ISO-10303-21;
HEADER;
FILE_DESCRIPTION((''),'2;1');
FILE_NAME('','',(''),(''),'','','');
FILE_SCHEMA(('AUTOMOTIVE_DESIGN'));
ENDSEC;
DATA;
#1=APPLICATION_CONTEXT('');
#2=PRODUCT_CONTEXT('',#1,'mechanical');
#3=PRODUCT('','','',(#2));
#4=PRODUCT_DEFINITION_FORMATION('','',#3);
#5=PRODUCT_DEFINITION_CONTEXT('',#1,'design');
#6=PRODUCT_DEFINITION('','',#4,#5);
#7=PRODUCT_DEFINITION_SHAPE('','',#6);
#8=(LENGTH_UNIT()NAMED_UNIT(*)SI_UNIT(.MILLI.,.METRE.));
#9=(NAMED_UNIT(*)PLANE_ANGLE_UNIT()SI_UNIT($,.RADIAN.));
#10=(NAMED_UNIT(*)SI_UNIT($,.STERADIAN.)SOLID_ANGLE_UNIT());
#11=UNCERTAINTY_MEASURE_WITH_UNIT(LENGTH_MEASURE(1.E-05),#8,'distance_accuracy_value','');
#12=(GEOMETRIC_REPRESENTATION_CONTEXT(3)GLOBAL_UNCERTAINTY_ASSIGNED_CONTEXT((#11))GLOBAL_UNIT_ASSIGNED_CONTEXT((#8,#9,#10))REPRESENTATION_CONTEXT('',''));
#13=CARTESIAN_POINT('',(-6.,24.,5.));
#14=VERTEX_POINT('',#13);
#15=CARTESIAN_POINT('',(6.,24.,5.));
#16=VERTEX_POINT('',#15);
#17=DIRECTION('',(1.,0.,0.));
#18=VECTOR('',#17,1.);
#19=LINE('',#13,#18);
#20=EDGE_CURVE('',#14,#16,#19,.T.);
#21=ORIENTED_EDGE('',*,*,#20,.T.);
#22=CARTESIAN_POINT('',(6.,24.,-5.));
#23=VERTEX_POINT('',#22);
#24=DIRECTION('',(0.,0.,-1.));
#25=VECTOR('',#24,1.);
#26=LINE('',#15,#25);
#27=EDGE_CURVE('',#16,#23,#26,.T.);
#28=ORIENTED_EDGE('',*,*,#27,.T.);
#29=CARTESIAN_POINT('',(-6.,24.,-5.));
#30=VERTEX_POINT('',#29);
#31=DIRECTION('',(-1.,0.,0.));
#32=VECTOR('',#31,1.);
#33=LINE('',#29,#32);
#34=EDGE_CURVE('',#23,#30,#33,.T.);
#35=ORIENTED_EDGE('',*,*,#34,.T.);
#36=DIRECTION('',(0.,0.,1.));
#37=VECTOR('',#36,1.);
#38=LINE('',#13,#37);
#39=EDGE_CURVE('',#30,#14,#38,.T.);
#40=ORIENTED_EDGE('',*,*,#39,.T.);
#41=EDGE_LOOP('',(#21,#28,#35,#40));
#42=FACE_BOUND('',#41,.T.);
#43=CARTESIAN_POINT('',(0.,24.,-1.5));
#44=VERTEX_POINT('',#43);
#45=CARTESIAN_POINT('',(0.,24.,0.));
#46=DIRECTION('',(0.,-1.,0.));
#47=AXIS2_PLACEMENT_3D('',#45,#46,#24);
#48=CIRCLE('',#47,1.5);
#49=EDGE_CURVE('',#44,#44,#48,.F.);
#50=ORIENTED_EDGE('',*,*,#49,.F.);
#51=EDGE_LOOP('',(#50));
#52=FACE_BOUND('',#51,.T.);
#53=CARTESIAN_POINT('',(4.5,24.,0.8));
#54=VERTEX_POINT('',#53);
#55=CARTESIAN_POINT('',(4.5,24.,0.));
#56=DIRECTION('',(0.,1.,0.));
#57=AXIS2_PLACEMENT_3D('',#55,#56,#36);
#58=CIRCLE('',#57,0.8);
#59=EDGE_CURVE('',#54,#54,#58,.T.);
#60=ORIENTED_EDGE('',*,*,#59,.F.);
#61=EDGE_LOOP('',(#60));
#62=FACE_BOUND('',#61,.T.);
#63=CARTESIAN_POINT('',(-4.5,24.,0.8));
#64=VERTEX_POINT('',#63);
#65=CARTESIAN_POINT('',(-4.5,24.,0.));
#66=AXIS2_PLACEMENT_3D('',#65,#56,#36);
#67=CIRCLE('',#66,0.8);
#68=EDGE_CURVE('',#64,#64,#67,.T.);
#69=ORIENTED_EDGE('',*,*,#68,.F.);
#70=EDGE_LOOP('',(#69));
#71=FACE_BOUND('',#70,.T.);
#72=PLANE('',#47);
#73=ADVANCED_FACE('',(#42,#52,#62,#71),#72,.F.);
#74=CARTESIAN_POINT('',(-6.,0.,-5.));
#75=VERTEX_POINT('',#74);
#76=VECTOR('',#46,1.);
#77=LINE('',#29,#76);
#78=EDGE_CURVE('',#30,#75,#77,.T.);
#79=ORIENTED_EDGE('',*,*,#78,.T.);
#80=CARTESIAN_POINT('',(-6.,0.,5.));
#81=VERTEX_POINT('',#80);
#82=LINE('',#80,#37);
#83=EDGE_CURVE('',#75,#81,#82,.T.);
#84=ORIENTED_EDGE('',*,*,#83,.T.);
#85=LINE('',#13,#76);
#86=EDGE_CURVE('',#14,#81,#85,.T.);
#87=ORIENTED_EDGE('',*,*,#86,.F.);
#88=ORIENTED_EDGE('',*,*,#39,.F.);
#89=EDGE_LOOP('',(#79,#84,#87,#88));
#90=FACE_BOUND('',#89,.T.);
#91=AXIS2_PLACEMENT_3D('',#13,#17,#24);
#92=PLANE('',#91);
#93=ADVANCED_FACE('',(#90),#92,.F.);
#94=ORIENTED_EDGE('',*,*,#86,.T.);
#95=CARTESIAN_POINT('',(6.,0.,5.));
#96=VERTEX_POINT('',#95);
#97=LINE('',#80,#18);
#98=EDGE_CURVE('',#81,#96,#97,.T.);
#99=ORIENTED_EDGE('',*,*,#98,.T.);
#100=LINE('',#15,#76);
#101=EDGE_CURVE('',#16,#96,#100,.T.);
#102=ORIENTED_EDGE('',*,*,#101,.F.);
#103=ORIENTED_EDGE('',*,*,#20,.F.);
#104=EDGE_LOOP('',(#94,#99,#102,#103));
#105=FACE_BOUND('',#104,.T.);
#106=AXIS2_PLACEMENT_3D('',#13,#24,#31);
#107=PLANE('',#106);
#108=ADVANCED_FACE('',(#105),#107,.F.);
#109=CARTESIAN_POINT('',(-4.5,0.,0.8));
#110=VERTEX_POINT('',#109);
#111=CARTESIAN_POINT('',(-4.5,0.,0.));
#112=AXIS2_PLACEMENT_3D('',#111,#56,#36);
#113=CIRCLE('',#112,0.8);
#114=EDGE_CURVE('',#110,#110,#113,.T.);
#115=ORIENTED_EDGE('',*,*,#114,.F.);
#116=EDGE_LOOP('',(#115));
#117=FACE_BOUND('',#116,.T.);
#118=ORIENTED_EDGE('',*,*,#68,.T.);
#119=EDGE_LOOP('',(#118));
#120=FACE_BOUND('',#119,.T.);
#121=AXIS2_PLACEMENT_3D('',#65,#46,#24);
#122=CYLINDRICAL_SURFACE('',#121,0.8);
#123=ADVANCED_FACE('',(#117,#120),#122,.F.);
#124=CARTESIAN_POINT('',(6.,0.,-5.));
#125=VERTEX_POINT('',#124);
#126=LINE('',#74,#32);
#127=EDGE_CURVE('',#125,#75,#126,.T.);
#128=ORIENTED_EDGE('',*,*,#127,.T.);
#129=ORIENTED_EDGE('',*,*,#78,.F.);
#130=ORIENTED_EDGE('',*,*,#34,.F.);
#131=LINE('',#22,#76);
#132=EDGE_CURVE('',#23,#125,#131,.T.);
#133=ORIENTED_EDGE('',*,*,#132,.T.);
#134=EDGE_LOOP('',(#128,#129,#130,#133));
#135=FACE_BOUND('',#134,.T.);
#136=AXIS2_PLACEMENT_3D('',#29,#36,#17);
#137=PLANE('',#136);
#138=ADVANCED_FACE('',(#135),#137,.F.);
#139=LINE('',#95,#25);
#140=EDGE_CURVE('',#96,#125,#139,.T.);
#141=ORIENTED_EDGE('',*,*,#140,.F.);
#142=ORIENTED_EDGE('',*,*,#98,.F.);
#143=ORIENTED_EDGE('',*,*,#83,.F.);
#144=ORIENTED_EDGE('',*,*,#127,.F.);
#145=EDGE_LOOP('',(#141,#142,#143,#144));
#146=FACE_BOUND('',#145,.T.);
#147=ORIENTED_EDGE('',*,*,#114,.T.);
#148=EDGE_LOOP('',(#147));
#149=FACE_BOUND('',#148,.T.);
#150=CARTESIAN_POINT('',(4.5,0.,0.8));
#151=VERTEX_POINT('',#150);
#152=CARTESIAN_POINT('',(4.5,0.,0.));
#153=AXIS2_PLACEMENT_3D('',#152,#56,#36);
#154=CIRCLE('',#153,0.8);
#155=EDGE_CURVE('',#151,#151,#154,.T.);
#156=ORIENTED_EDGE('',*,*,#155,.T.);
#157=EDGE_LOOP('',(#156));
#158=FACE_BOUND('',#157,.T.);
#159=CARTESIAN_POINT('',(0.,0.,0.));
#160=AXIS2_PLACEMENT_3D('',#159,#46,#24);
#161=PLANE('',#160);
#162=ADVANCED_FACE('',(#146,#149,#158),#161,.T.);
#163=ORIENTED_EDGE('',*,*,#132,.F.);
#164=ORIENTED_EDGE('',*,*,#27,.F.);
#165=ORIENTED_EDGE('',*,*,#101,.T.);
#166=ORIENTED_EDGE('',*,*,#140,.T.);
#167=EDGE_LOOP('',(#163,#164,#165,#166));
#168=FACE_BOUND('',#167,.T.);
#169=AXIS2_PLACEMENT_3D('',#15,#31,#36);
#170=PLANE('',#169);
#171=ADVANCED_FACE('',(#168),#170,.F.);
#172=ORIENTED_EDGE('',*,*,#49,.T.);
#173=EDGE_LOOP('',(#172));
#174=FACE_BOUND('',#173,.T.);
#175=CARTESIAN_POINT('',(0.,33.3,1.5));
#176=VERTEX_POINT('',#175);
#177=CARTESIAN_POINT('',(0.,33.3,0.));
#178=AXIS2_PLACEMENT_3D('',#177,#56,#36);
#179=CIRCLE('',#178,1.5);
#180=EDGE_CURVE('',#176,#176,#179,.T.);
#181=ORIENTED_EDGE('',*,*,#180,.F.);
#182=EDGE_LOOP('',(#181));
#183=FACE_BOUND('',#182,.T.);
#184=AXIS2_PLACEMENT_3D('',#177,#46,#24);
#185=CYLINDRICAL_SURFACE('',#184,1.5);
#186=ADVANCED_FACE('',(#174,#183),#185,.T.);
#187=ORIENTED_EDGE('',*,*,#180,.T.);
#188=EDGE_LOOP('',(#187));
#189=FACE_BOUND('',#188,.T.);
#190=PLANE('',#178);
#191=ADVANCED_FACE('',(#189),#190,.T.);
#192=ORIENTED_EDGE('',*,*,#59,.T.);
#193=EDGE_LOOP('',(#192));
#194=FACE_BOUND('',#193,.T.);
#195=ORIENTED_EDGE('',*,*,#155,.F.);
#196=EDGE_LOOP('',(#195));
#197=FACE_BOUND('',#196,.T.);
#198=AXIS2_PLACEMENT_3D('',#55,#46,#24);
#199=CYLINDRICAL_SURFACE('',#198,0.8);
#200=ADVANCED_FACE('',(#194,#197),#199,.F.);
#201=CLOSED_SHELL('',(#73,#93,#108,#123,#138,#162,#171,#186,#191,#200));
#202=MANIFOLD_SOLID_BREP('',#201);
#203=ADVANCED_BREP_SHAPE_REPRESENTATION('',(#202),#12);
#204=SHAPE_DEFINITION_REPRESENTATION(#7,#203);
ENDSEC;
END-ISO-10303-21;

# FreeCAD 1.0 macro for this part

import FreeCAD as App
import Part
import Sketcher

V = App.Vector
Q = App.Units.Quantity


def add_polygon(sketch, points):
    """Adds a closed chain of lines whose ends are joined by coincident constraints."""
    first, n = sketch.GeometryCount, len(points)
    for a, b in zip(points, points[1:] + points[:1]):
        sketch.addGeometry(Part.LineSegment(App.Vector(*a, 0), App.Vector(*b, 0)), False)
    for i in range(n):
        sketch.addConstraint(Sketcher.Constraint("Coincident", first + i, 2, first + (i + 1) % n, 1))

doc = App.newDocument("Part")
params = doc.addObject("Spreadsheet::Sheet", "Params")
for row, (alias, value) in enumerate([
    ("sketch1_diameter", "1.6 mm"),
    ("sketch1_width", "12 mm"),
    ("sketch1_height", "10 mm"),
    ("pad1_length", "24 mm"),
    ("sketch2_diameter", "3 mm"),
    ("pad2_length", "9.3 mm"),
], start=1):
    params.set(f"A{row}", alias)
    params.set(f"B{row}", "=" + value)
    params.setAlias(f"B{row}", alias)

body = doc.addObject("PartDesign::Body", "Body")

sketch1 = doc.addObject("Sketcher::SketchObject", "Sketch")
body.addObject(sketch1)
sketch1.AttachmentSupport = (doc.XZ_Plane, [""])
sketch1.MapMode = "FlatFace"
add_polygon(sketch1, [(-6, -5), (-6, 5), (6, 5), (6, -5)])
sketch1.addGeometry(Part.Circle(V(-4.5, 0, 0), V(0, 0, 1), 0.8), False)
sketch1.addGeometry(Part.Circle(V(4.5, 0, 0), V(0, 0, 1), 0.8), False)
sketch1.addConstraint([
    Sketcher.Constraint("Vertical", 0),
    Sketcher.Constraint("Horizontal", 1),
    Sketcher.Constraint("Vertical", 2),
    Sketcher.Constraint("Horizontal", 3),
    Sketcher.Constraint("Equal", 4, 5),
    Sketcher.Constraint("Symmetric", 4, 3, 5, 3, -1, 1),
    Sketcher.Constraint("Symmetric", 0, 2, 2, 2, -1, 1),
    Sketcher.Constraint("PointOnObject", 4, 3, -1),
    Sketcher.Constraint("Diameter", 4, Q("1.6 mm")),
    Sketcher.Constraint("DistanceX", 1, 1, 1, 2, Q("12 mm")),
    Sketcher.Constraint("DistanceY", 0, 1, 0, 2, Q("10 mm")),
    Sketcher.Constraint("DistanceX", 4, 3, 5, 3, Q("9 mm")),
])
sketch1.setExpression("Constraints[12]", "Params.sketch1_diameter")
sketch1.setExpression("Constraints[13]", "Params.sketch1_width")
sketch1.setExpression("Constraints[14]", "Params.sketch1_height")
pad1 = doc.addObject("PartDesign::Pad", "Pad")
body.addObject(pad1)
pad1.Profile = sketch1
pad1.setExpression("Length", "Params.pad1_length")
pad1.Reversed = True

sketch2 = doc.addObject("Sketcher::SketchObject", "Sketch001")
body.addObject(sketch2)
sketch2.AttachmentSupport = (doc.XZ_Plane, [""])
sketch2.MapMode = "FlatFace"
sketch2.AttachmentOffset = App.Placement(V(0, 0, -24), App.Rotation())
sketch2.addGeometry(Part.Circle(V(0, 0, 0), V(0, 0, 1), 1.5), False)
sketch2.addConstraint([
    Sketcher.Constraint("Coincident", 0, 3, -1, 1),
    Sketcher.Constraint("Diameter", 0, Q("3 mm")),
])
sketch2.setExpression("Constraints[1]", "Params.sketch2_diameter")
pad2 = doc.addObject("PartDesign::Pad", "Pad001")
body.addObject(pad2)
pad2.Profile = sketch2
pad2.setExpression("Length", "Params.pad2_length")
pad2.Reversed = True

doc.recompute()
